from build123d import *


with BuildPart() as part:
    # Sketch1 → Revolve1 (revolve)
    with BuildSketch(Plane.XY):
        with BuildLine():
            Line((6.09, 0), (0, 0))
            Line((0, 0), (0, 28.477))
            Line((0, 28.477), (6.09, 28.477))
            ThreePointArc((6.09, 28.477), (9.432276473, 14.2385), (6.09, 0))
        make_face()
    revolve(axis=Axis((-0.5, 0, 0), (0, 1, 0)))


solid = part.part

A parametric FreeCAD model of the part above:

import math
import FreeCAD as App
import Part
import Sketcher
Q = App.Units.Quantity

doc = App.newDocument("Part")
body = doc.addObject("PartDesign::Body", "Body")

sketch1 = body.newObject("Sketcher::SketchObject", "Sketch")
sketch1.AttachmentSupport = (doc.getObject("XY_Plane"), [""])
sketch1.MapMode = "FlatFace"
sketch1.addGeometry([
    Part.LineSegment(App.Vector(0, 0, 0), App.Vector(6, 0, 0)),
    Part.ArcOfCircle(Part.Circle(App.Vector(-23, 14, 0), App.Vector(0, 0, 1), 32), math.radians(-26), math.radians(26)),
    Part.LineSegment(App.Vector(6, 28, 0), App.Vector(0, 28, 0)),
    Part.LineSegment(App.Vector(0, 28, 0), App.Vector(0, 0, 0)),
], False)
sketch1.addGeometry(Part.LineSegment(App.Vector(0, 0, 0), App.Vector(0, 28, 0)), True)
sketch1.addConstraint([
    Sketcher.Constraint("Coincident", 0, 2, 1, 1),
    Sketcher.Constraint("Coincident", 1, 2, 2, 1),
    Sketcher.Constraint("Coincident", 2, 2, 3, 1),
    Sketcher.Constraint("Coincident", 3, 2, 0, 1),
    Sketcher.Constraint("Horizontal", 0),
    Sketcher.Constraint("Horizontal", 2),
    Sketcher.Constraint("Vertical", 3),
    Sketcher.Constraint("Vertical", 4),
    Sketcher.Constraint("Coincident", 3, 2, -1, 1),
    Sketcher.Constraint("PointOnObject", 4, 1, -1),
    Sketcher.Constraint("Horizontal", 2, 2, 4, 2),
    Sketcher.Constraint("Vertical", 0, 2, 1, 2),
    Sketcher.Constraint("Radius", 1, Q("32 mm")),
    Sketcher.Constraint("DistanceX", 0, 1, 0, 2, Q("6.09 mm")),
    Sketcher.Constraint("DistanceX", 4, 1, -1, 1, Q("0.5 mm")),
    Sketcher.Constraint("DistanceY", 3, 2, 3, 1, Q("28.477 mm")),
])
revolution = body.newObject("PartDesign::Revolution", "Revolution")
revolution.Profile = sketch1
revolution.ReferenceAxis = (sketch1, ["Axis0"])
revolution.Angle = 360

doc.recompute()
